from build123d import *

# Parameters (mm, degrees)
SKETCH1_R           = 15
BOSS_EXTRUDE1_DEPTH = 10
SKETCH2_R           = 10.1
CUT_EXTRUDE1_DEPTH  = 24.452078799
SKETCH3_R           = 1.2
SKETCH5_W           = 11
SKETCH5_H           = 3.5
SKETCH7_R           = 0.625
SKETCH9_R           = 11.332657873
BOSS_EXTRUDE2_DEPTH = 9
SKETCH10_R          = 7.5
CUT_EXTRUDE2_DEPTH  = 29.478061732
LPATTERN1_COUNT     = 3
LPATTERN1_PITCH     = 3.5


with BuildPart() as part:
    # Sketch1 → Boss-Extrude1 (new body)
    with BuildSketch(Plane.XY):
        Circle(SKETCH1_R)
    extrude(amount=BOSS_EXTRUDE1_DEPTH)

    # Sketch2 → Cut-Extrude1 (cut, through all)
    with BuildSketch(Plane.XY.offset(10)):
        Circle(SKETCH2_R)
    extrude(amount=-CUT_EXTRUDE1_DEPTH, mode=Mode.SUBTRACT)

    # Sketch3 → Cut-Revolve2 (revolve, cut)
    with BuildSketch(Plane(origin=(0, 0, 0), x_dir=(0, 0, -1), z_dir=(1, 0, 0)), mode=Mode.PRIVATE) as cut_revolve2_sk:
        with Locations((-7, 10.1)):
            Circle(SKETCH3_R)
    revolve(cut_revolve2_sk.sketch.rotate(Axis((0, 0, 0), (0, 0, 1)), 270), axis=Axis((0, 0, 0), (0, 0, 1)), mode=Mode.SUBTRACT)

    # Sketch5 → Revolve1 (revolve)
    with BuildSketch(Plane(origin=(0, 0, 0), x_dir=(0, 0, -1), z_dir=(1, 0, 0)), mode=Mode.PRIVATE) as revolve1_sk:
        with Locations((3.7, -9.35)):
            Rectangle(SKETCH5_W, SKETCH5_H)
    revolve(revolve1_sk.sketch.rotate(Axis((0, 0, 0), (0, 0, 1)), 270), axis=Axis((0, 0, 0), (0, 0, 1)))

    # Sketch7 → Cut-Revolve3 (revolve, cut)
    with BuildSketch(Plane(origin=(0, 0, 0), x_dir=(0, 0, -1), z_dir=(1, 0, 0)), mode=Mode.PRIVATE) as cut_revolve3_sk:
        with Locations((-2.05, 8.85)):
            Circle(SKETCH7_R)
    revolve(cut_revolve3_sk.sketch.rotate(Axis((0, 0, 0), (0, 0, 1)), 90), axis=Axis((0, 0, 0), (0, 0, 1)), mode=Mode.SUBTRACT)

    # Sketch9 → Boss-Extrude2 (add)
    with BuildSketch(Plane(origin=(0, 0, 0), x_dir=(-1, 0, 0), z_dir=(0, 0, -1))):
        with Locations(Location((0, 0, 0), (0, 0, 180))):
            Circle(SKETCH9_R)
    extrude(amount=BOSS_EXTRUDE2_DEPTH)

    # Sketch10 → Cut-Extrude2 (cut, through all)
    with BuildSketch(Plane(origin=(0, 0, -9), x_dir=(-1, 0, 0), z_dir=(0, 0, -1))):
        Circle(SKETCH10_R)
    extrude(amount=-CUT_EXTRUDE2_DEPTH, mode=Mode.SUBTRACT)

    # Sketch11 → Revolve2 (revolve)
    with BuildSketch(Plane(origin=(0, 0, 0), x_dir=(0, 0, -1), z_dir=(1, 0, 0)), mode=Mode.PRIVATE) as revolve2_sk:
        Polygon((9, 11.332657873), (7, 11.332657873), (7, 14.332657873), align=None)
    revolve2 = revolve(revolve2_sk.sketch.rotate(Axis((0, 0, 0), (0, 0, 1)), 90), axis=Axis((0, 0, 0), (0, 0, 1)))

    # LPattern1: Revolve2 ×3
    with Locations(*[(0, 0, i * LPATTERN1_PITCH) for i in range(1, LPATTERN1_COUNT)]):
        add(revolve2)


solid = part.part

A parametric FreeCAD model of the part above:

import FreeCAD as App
import Part
import Sketcher


def add_polygon(sketch, points):
    """Adds a closed chain of lines whose ends are joined by coincident constraints."""
    first, n = sketch.GeometryCount, len(points)
    for a, b in zip(points, points[1:] + points[:1]):
        sketch.addGeometry(Part.LineSegment(App.Vector(*a, 0), App.Vector(*b, 0)), False)
    for i in range(n):
        sketch.addConstraint(Sketcher.Constraint("Coincident", first + i, 2, first + (i + 1) % n, 1))

doc = App.newDocument("Part")
body = doc.addObject("PartDesign::Body", "Body")

# Sketch on XY plane
sketch1 = body.newObject("Sketcher::SketchObject", "Sketch")
sketch1.AttachmentSupport = (doc.getObject("XY_Plane"), [""])
sketch1.MapMode = "FlatFace"
sketch1.addGeometry(Part.Circle(App.Vector(0, 0, 0), App.Vector(0, 0, 1), 15), False)
sketch1.addConstraint([
    Sketcher.Constraint("Coincident", 0, 3, -1, 1),
    Sketcher.Constraint("Diameter", 0, 30.0),
])
pad1 = body.newObject("PartDesign::Pad", "Pad")
pad1.Profile = sketch1
pad1.Length = 10

# Sketch on XY plane
sketch2 = body.newObject("Sketcher::SketchObject", "Sketch001")
sketch2.AttachmentSupport = (doc.getObject("XY_Plane"), [""])
sketch2.MapMode = "FlatFace"
sketch2.AttachmentOffset = App.Placement(App.Vector(0, 0, 10), App.Rotation())
sketch2.addGeometry(Part.Circle(App.Vector(0, 0, 0), App.Vector(0, 0, 1), 10), False)
sketch2.addConstraint([
    Sketcher.Constraint("Coincident", 0, 3, -1, 1),
    Sketcher.Constraint("Diameter", 0, 20.2),
])
pocket1 = body.newObject("PartDesign::Pocket", "Pocket")
pocket1.Profile = sketch2
pocket1.Type = "ThroughAll"

# Sketch on YZ plane
sketch3 = body.newObject("Sketcher::SketchObject", "Sketch002")
sketch3.AttachmentSupport = (doc.getObject("YZ_Plane"), [""])
sketch3.MapMode = "FlatFace"
sketch3.addGeometry(Part.Circle(App.Vector(10.1, 7, 0), App.Vector(0, 0, 1), 1.2), False)
sketch3.addConstraint([
    Sketcher.Constraint("Diameter", 0, 2.4),
    Sketcher.Constraint("DistanceY", -1, 1, 0, 3, 7.0),
    Sketcher.Constraint("DistanceX", -1, 1, 0, 3, 10.1),
])
groove = body.newObject("PartDesign::Groove", "Groove")
groove.Profile = sketch3
groove.ReferenceAxis = (sketch3, ["V_Axis"])
groove.Angle = 360

# Sketch on YZ plane
sketch4 = body.newObject("Sketcher::SketchObject", "Sketch003")
sketch4.AttachmentSupport = (doc.getObject("YZ_Plane"), [""])
sketch4.MapMode = "FlatFace"
add_polygon(sketch4, [(-7.6, 1.8), (-11.1, 1.8), (-11.1, -9.2), (-7.6, -9.2)])  # lines 0-3
sketch4.addConstraint([
    Sketcher.Constraint("Horizontal", 0),
    Sketcher.Constraint("Vertical", 1),
    Sketcher.Constraint("Horizontal", 2),
    Sketcher.Constraint("Vertical", 3),
    Sketcher.Constraint("DistanceY", 1, 2, 1, 1, 11.0),
    Sketcher.Constraint("DistanceX", 0, 2, 0, 1, 3.5),
    Sketcher.Constraint("DistanceX", 0, 2, -1, 1, 11.1),
    Sketcher.Constraint("DistanceY", -1, 1, 0, 2, 1.8),
])
revolution = body.newObject("PartDesign::Revolution", "Revolution")
revolution.Profile = sketch4
revolution.ReferenceAxis = (sketch4, ["V_Axis"])
revolution.Angle = 360

# Sketch on YZ plane
sketch5 = body.newObject("Sketcher::SketchObject", "Sketch004")
sketch5.AttachmentSupport = (doc.getObject("YZ_Plane"), [""])
sketch5.MapMode = "FlatFace"
sketch5.addGeometry(Part.Circle(App.Vector(8.8, 2, 0), App.Vector(0, 0, 1), 0.6), False)
sketch5.addConstraint([
    Sketcher.Constraint("Diameter", 0, 1.25),
    Sketcher.Constraint("DistanceX", -1, 1, 0, 3, 8.85),
    Sketcher.Constraint("DistanceY", -1, 1, 0, 3, 2.05),
])
groove2 = body.newObject("PartDesign::Groove", "Groove001")
groove2.Profile = sketch5
groove2.ReferenceAxis = (sketch5, ["V_Axis"])
groove2.Angle = 360

# Sketch on XY plane
sketch6 = body.newObject("Sketcher::SketchObject", "Sketch005")
sketch6.AttachmentSupport = (doc.getObject("XY_Plane"), [""])
sketch6.MapMode = "FlatFace"
sketch6.addGeometry(Part.Circle(App.Vector(0, 0, 0), App.Vector(0, 0, 1), 11), False)
sketch6.addConstraint([
    Sketcher.Constraint("Coincident", 0, 3, -1, 1),
    Sketcher.Constraint("Diameter", 0, 22.665316),
])
pad2 = body.newObject("PartDesign::Pad", "Pad001")
pad2.Profile = sketch6
pad2.Length = 9
pad2.Reversed = True

# Sketch on XY plane
sketch7 = body.newObject("Sketcher::SketchObject", "Sketch006")
sketch7.AttachmentSupport = (doc.getObject("XY_Plane"), [""])
sketch7.MapMode = "FlatFace"
sketch7.AttachmentOffset = App.Placement(App.Vector(0, 0, -9), App.Rotation())
sketch7.addGeometry(Part.Circle(App.Vector(0, 0, 0), App.Vector(0, 0, 1), 8), False)
sketch7.addConstraint([
    Sketcher.Constraint("Coincident", 0, 3, -1, 1),
    Sketcher.Constraint("Diameter", 0, 15.0),
])
pocket2 = body.newObject("PartDesign::Pocket", "Pocket001")
pocket2.Profile = sketch7
pocket2.Type = "ThroughAll"
pocket2.Reversed = True

# Sketch on YZ plane
sketch8 = body.newObject("Sketcher::SketchObject", "Sketch007")
sketch8.AttachmentSupport = (doc.getObject("YZ_Plane"), [""])
sketch8.MapMode = "FlatFace"
add_polygon(sketch8, [(11.3, -7), (11.3, -9), (14.3, -7)])  # lines 0-2
sketch8.addConstraint([
    Sketcher.Constraint("Vertical", 0),
    Sketcher.Constraint("Horizontal", 2),
    Sketcher.Constraint("DistanceX", 2, 2, 2, 1, 3.0),
    Sketcher.Constraint("DistanceY", 0, 2, 0, 1, 2.0),
    Sketcher.Constraint("DistanceY", 0, 2, -1, 1, 9.0),
    Sketcher.Constraint("DistanceX", -1, 1, 0, 2, 11.332658),
])
revolution2 = body.newObject("PartDesign::Revolution", "Revolution001")
revolution2.Profile = sketch8
revolution2.ReferenceAxis = (sketch8, ["V_Axis"])
revolution2.Angle = 360
doc.recompute()

linearpattern = body.newObject("PartDesign::LinearPattern", "LinearPattern")
linearpattern.Originals = [revolution2]
linearpattern.Direction = (doc.getObject("Z_Axis"), [""])
linearpattern.Mode = "offset"
linearpattern.Offset = 3.5
linearpattern.Occurrences = 3
body.Tip = linearpattern

doc.recompute()
